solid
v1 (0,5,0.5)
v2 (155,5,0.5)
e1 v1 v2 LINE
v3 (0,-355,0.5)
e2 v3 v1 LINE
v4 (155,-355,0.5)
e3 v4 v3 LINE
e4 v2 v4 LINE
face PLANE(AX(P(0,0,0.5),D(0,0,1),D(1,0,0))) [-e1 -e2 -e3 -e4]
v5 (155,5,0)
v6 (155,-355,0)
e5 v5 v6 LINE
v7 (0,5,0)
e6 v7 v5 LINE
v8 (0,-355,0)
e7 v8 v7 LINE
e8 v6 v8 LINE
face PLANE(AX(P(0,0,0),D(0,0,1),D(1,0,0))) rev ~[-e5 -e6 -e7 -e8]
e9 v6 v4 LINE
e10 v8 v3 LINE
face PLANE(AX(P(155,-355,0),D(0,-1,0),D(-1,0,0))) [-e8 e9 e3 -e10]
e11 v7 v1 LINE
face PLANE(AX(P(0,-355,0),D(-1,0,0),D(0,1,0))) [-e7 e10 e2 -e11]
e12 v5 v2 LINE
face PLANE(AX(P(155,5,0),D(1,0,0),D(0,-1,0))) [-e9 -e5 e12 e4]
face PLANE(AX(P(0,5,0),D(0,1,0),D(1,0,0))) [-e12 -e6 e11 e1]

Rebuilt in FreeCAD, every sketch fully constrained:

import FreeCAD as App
import Part
import Sketcher
from FreeCAD import Vector
Q = App.Units.Quantity


def add_polygon(sketch, points):
    """Adds a closed chain of lines whose ends are joined by coincident constraints."""
    first, n = sketch.GeometryCount, len(points)
    for a, b in zip(points, points[1:] + points[:1]):
        sketch.addGeometry(Part.LineSegment(App.Vector(*a, 0), App.Vector(*b, 0)), False)
    for i in range(n):
        sketch.addConstraint(Sketcher.Constraint("Coincident", first + i, 2, first + (i + 1) % n, 1))

doc = App.newDocument("Part")
params = doc.addObject("Spreadsheet::Sheet", "Params")
for row, (alias, value) in enumerate([
    ("sketch1_width", "155 mm"),
    ("sketch1_height", "360 mm"),
    ("pad1_length", "0.5 mm"),
], start=1):
    params.set(f"A{row}", alias)
    params.set(f"B{row}", "=" + value)
    params.setAlias(f"B{row}", alias)

body = doc.addObject("PartDesign::Body", "Body")

sketch1 = body.newObject("Sketcher::SketchObject", "Sketch")
sketch1.AttachmentSupport = (doc.getObject("XY_Plane"), [""])
sketch1.MapMode = "FlatFace"
add_polygon(sketch1, [(155, 5), (0, 5), (0, -355), (155, -355)])
sketch1.addConstraint([
    Sketcher.Constraint("Horizontal", 0),
    Sketcher.Constraint("Vertical", 1),
    Sketcher.Constraint("Horizontal", 2),
    Sketcher.Constraint("Vertical", 3),
    Sketcher.Constraint("PointOnObject", 0, 2, -2),
    Sketcher.Constraint("DistanceX", 0, 2, 0, 1, Q("155 mm")),
    Sketcher.Constraint("DistanceY", 1, 2, 1, 1, Q("360 mm")),
    Sketcher.Constraint("DistanceY", -1, 1, 0, 2, Q("5 mm")),
])
sketch1.setExpression("Constraints[9]", "Params.sketch1_width")
sketch1.setExpression("Constraints[10]", "Params.sketch1_height")
pad1 = body.newObject("PartDesign::Pad", "Pad")
pad1.Profile = sketch1
pad1.setExpression("Length", "Params.pad1_length")

doc.recompute()
